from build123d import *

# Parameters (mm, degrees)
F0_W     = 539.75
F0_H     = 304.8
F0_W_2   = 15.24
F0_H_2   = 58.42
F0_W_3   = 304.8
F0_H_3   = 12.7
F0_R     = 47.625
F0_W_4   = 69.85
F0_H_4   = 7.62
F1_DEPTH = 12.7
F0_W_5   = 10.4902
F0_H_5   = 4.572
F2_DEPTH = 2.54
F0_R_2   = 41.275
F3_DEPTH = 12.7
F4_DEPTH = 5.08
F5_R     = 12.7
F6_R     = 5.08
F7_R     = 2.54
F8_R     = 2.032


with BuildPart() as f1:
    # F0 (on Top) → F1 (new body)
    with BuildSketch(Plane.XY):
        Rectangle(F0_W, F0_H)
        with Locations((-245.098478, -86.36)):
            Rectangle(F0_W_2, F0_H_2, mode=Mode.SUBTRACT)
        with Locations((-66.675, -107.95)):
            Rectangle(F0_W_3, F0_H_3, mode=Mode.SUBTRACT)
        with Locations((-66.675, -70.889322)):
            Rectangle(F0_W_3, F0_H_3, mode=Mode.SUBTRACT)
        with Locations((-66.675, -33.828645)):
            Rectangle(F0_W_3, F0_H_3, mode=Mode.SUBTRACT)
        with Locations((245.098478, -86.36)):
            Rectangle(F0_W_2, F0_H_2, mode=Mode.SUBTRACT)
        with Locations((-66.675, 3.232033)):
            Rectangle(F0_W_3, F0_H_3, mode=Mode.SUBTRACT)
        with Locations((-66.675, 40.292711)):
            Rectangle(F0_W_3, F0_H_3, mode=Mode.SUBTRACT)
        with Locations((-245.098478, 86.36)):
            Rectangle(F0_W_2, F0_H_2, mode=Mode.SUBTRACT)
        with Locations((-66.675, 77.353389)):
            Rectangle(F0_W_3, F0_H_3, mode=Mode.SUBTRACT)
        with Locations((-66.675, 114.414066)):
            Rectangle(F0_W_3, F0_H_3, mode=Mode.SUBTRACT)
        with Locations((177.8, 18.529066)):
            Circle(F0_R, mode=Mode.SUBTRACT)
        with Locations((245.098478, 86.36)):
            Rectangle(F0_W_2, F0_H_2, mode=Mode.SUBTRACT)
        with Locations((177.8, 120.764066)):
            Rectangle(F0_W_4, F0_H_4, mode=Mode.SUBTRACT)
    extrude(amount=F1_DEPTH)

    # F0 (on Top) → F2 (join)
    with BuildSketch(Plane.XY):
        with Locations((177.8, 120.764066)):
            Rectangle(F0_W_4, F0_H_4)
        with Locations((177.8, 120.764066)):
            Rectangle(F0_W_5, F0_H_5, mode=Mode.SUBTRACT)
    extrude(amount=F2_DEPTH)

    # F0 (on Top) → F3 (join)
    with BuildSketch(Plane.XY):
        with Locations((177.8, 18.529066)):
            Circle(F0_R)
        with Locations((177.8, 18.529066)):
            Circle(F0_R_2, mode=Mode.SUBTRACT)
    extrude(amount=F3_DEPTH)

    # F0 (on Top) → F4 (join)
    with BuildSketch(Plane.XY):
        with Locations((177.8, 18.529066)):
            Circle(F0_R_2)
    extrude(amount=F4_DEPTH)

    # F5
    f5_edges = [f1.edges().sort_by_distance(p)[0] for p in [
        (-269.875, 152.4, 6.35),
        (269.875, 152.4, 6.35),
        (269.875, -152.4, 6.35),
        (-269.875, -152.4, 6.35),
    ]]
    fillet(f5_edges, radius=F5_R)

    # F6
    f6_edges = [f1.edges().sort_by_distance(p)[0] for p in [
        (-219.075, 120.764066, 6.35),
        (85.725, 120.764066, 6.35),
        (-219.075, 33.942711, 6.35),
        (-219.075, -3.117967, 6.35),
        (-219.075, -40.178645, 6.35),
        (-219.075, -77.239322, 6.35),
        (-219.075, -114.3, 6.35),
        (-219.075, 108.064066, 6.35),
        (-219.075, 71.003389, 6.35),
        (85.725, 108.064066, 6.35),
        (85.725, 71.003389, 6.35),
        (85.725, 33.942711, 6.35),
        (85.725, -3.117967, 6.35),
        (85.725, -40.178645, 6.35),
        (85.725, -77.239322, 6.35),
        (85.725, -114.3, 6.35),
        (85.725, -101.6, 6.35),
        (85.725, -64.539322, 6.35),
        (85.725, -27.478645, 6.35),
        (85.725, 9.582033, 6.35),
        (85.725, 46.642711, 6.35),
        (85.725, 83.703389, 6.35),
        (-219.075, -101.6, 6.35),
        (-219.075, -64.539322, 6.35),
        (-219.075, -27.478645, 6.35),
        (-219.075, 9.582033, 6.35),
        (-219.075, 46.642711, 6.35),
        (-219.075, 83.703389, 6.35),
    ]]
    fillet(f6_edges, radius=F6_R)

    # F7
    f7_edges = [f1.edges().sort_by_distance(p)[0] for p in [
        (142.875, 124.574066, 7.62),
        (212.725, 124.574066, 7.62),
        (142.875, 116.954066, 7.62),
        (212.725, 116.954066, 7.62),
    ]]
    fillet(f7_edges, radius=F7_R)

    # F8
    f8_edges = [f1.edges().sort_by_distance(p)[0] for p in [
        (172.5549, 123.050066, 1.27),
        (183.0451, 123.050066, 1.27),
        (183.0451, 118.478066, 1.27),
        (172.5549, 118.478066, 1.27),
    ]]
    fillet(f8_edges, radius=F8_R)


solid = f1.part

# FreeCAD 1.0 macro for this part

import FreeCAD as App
import Part
import Sketcher
Q = App.Units.Quantity


def edges_at(feature, points):
    """Names of the edges that pass closest to the given points."""
    edges = feature.Shape.Edges
    near = lambda p: min(range(len(edges)), key=lambda i: edges[i].distToShape(Part.Vertex(*p))[0])
    return sorted({f"Edge{near(p) + 1}" for p in points})

doc = App.newDocument("Part")
params = doc.addObject("Spreadsheet::Sheet", "Params")
for row, (alias, value) in enumerate([
    ("sketch1_diameter", "3.75 in"),
    ("sketch1_width", "12 in"),
    ("sketch1_width2", "0.6 in"),
    ("sketch1_height", "2.3 in"),
    ("sketch1_height2", "0.5 in"),
    ("pad1_length", "0.5 in"),
    ("sketch2_height", "0.3 in"),
    ("sketch2_width", "2.75 in"),
    ("sketch2_height2", "0.18 in"),
    ("sketch2_width2", "0.413 in"),
    ("pad2_length", "0.1 in"),
    ("sketch3_diameter", "3.75 in"),
    ("sketch3_diameter2", "3.25 in"),
    ("pad3_length", "0.5 in"),
    ("sketch4_diameter", "3.25 in"),
    ("pad4_length", "0.2 in"),
    ("fillet_radius", "0.5 in"),
    ("fillet2_radius", "0.2 in"),
    ("fillet3_radius", "0.1 in"),
    ("fillet4_radius", "0.08 in"),
], start=1):
    params.set(f"A{row}", alias)
    params.set(f"B{row}", "=" + value)
    params.setAlias(f"B{row}", alias)

body = doc.addObject("PartDesign::Body", "Body")

# Sketch on XY plane
sketch1 = body.newObject("Sketcher::SketchObject", "Sketch")
sketch1.AttachmentSupport = (doc.getObject("XY_Plane"), [""])
sketch1.MapMode = "FlatFace"
sketch1.addGeometry(Part.LineSegment(App.Vector(-270, 152, 0), App.Vector(-270, -152, 0)), False)
sketch1.addGeometry(Part.LineSegment(App.Vector(-270, -152, 0), App.Vector(270, -152, 0)), False)
sketch1.addGeometry(Part.LineSegment(App.Vector(270, -152, 0), App.Vector(270, 152, 0)), False)
sketch1.addGeometry(Part.LineSegment(App.Vector(270, 152, 0), App.Vector(-270, 152, 0)), False)
sketch1.addGeometry(Part.LineSegment(App.Vector(-237, -116, 0), App.Vector(-253, -116, 0)), False)
sketch1.addGeometry(Part.LineSegment(App.Vector(-253, -116, 0), App.Vector(-253, -57, 0)), False)
sketch1.addGeometry(Part.LineSegment(App.Vector(-253, -57, 0), App.Vector(-237, -57, 0)), False)
sketch1.addGeometry(Part.LineSegment(App.Vector(-237, -57, 0), App.Vector(-237, -116, 0)), False)
sketch1.addGeometry(Part.LineSegment(App.Vector(86, -114, 0), App.Vector(-219, -114, 0)), False)
sketch1.addGeometry(Part.LineSegment(App.Vector(-219, -114, 0), App.Vector(-219, -102, 0)), False)
sketch1.addGeometry(Part.LineSegment(App.Vector(-219, -102, 0), App.Vector(86, -102, 0)), False)
sketch1.addGeometry(Part.LineSegment(App.Vector(86, -102, 0), App.Vector(86, -114, 0)), False)
sketch1.addGeometry(Part.LineSegment(App.Vector(86, -77, 0), App.Vector(-219, -77, 0)), False)
sketch1.addGeometry(Part.LineSegment(App.Vector(-219, -77, 0), App.Vector(-219, -65, 0)), False)
sketch1.addGeometry(Part.LineSegment(App.Vector(-219, -65, 0), App.Vector(86, -65, 0)), False)
sketch1.addGeometry(Part.LineSegment(App.Vector(86, -65, 0), App.Vector(86, -77, 0)), False)
sketch1.addGeometry(Part.LineSegment(App.Vector(86, -40, 0), App.Vector(-219, -40, 0)), False)
sketch1.addGeometry(Part.LineSegment(App.Vector(-219, -40, 0), App.Vector(-219, -27, 0)), False)
sketch1.addGeometry(Part.LineSegment(App.Vector(-219, -27, 0), App.Vector(86, -27, 0)), False)
sketch1.addGeometry(Part.LineSegment(App.Vector(86, -27, 0), App.Vector(86, -40, 0)), False)
sketch1.addGeometry(Part.LineSegment(App.Vector(86, -3, 0), App.Vector(-219, -3, 0)), False)
sketch1.addGeometry(Part.LineSegment(App.Vector(-219, -3, 0), App.Vector(-219, 10, 0)), False)
sketch1.addGeometry(Part.LineSegment(App.Vector(-219, 10, 0), App.Vector(86, 10, 0)), False)
sketch1.addGeometry(Part.LineSegment(App.Vector(86, 10, 0), App.Vector(86, -3, 0)), False)
sketch1.addGeometry(Part.LineSegment(App.Vector(253, -116, 0), App.Vector(237, -116, 0)), False)
sketch1.addGeometry(Part.LineSegment(App.Vector(237, -116, 0), App.Vector(237, -57, 0)), False)
sketch1.addGeometry(Part.LineSegment(App.Vector(237, -57, 0), App.Vector(253, -57, 0)), False)
sketch1.addGeometry(Part.LineSegment(App.Vector(253, -57, 0), App.Vector(253, -116, 0)), False)
sketch1.addGeometry(Part.LineSegment(App.Vector(86, 34, 0), App.Vector(-219, 34, 0)), False)
sketch1.addGeometry(Part.LineSegment(App.Vector(-219, 34, 0), App.Vector(-219, 47, 0)), False)
sketch1.addGeometry(Part.LineSegment(App.Vector(-219, 47, 0), App.Vector(86, 47, 0)), False)
sketch1.addGeometry(Part.LineSegment(App.Vector(86, 47, 0), App.Vector(86, 34, 0)), False)
sketch1.addGeometry(Part.LineSegment(App.Vector(-237, 57, 0), App.Vector(-253, 57, 0)), False)
sketch1.addGeometry(Part.LineSegment(App.Vector(-253, 57, 0), App.Vector(-253, 116, 0)), False)
sketch1.addGeometry(Part.LineSegment(App.Vector(-253, 116, 0), App.Vector(-237, 116, 0)), False)
sketch1.addGeometry(Part.LineSegment(App.Vector(-237, 116, 0), App.Vector(-237, 57, 0)), False)
sketch1.addGeometry(Part.LineSegment(App.Vector(86, 71, 0), App.Vector(-219, 71, 0)), False)
sketch1.addGeometry(Part.LineSegment(App.Vector(-219, 71, 0), App.Vector(-219, 84, 0)), False)
sketch1.addGeometry(Part.LineSegment(App.Vector(-219, 84, 0), App.Vector(86, 84, 0)), False)
sketch1.addGeometry(Part.LineSegment(App.Vector(86, 84, 0), App.Vector(86, 71, 0)), False)
sketch1.addGeometry(Part.LineSegment(App.Vector(86, 108, 0), App.Vector(-219, 108, 0)), False)
sketch1.addGeometry(Part.LineSegment(App.Vector(-219, 108, 0), App.Vector(-219, 121, 0)), False)
sketch1.addGeometry(Part.LineSegment(App.Vector(-219, 121, 0), App.Vector(86, 121, 0)), False)
sketch1.addGeometry(Part.LineSegment(App.Vector(86, 121, 0), App.Vector(86, 108, 0)), False)
sketch1.addGeometry(Part.Circle(App.Vector(178, 19, 0), App.Vector(0, 0, 1), 48), False)
sketch1.addGeometry(Part.LineSegment(App.Vector(253, 57, 0), App.Vector(237, 57, 0)), False)
sketch1.addGeometry(Part.LineSegment(App.Vector(237, 57, 0), App.Vector(237, 116, 0)), False)
sketch1.addGeometry(Part.LineSegment(App.Vector(237, 116, 0), App.Vector(253, 116, 0)), False)
sketch1.addGeometry(Part.LineSegment(App.Vector(253, 116, 0), App.Vector(253, 57, 0)), False)
sketch1.addGeometry(Part.LineSegment(App.Vector(213, 117, 0), App.Vector(143, 117, 0)), False)
sketch1.addGeometry(Part.LineSegment(App.Vector(143, 117, 0), App.Vector(143, 125, 0)), False)
sketch1.addGeometry(Part.LineSegment(App.Vector(143, 125, 0), App.Vector(213, 125, 0)), False)
sketch1.addGeometry(Part.LineSegment(App.Vector(213, 125, 0), App.Vector(213, 117, 0)), False)
sketch1.addConstraint(Sketcher.Constraint("Coincident", 0, 2, 1, 1))
sketch1.addConstraint(Sketcher.Constraint("Coincident", 1, 2, 2, 1))
sketch1.addConstraint(Sketcher.Constraint("Coincident", 2, 2, 3, 1))
sketch1.addConstraint(Sketcher.Constraint("Coincident", 3, 2, 0, 1))
sketch1.addConstraint(Sketcher.Constraint("Coincident", 4, 2, 5, 1))
sketch1.addConstraint(Sketcher.Constraint("Coincident", 5, 2, 6, 1))
sketch1.addConstraint(Sketcher.Constraint("Coincident", 6, 2, 7, 1))
sketch1.addConstraint(Sketcher.Constraint("Coincident", 7, 2, 4, 1))
sketch1.addConstraint(Sketcher.Constraint("Coincident", 8, 2, 9, 1))
sketch1.addConstraint(Sketcher.Constraint("Coincident", 9, 2, 10, 1))
sketch1.addConstraint(Sketcher.Constraint("Coincident", 10, 2, 11, 1))
sketch1.addConstraint(Sketcher.Constraint("Coincident", 11, 2, 8, 1))
sketch1.addConstraint(Sketcher.Constraint("Coincident", 12, 2, 13, 1))
sketch1.addConstraint(Sketcher.Constraint("Coincident", 13, 2, 14, 1))
sketch1.addConstraint(Sketcher.Constraint("Coincident", 14, 2, 15, 1))
sketch1.addConstraint(Sketcher.Constraint("Coincident", 15, 2, 12, 1))
sketch1.addConstraint(Sketcher.Constraint("Coincident", 16, 2, 17, 1))
sketch1.addConstraint(Sketcher.Constraint("Coincident", 17, 2, 18, 1))
sketch1.addConstraint(Sketcher.Constraint("Coincident", 18, 2, 19, 1))
sketch1.addConstraint(Sketcher.Constraint("Coincident", 19, 2, 16, 1))
sketch1.addConstraint(Sketcher.Constraint("Coincident", 20, 2, 21, 1))
sketch1.addConstraint(Sketcher.Constraint("Coincident", 21, 2, 22, 1))
sketch1.addConstraint(Sketcher.Constraint("Coincident", 22, 2, 23, 1))
sketch1.addConstraint(Sketcher.Constraint("Coincident", 23, 2, 20, 1))
sketch1.addConstraint(Sketcher.Constraint("Coincident", 24, 2, 25, 1))
sketch1.addConstraint(Sketcher.Constraint("Coincident", 25, 2, 26, 1))
sketch1.addConstraint(Sketcher.Constraint("Coincident", 26, 2, 27, 1))
sketch1.addConstraint(Sketcher.Constraint("Coincident", 27, 2, 24, 1))
sketch1.addConstraint(Sketcher.Constraint("Coincident", 28, 2, 29, 1))
sketch1.addConstraint(Sketcher.Constraint("Coincident", 29, 2, 30, 1))
sketch1.addConstraint(Sketcher.Constraint("Coincident", 30, 2, 31, 1))
sketch1.addConstraint(Sketcher.Constraint("Coincident", 31, 2, 28, 1))
sketch1.addConstraint(Sketcher.Constraint("Coincident", 32, 2, 33, 1))
sketch1.addConstraint(Sketcher.Constraint("Coincident", 33, 2, 34, 1))
sketch1.addConstraint(Sketcher.Constraint("Coincident", 34, 2, 35, 1))
sketch1.addConstraint(Sketcher.Constraint("Coincident", 35, 2, 32, 1))
sketch1.addConstraint(Sketcher.Constraint("Coincident", 36, 2, 37, 1))
sketch1.addConstraint(Sketcher.Constraint("Coincident", 37, 2, 38, 1))
sketch1.addConstraint(Sketcher.Constraint("Coincident", 38, 2, 39, 1))
sketch1.addConstraint(Sketcher.Constraint("Coincident", 39, 2, 36, 1))
sketch1.addConstraint(Sketcher.Constraint("Coincident", 40, 2, 41, 1))
sketch1.addConstraint(Sketcher.Constraint("Coincident", 41, 2, 42, 1))
sketch1.addConstraint(Sketcher.Constraint("Coincident", 42, 2, 43, 1))
sketch1.addConstraint(Sketcher.Constraint("Coincident", 43, 2, 40, 1))
sketch1.addConstraint(Sketcher.Constraint("Coincident", 45, 2, 46, 1))
sketch1.addConstraint(Sketcher.Constraint("Coincident", 46, 2, 47, 1))
sketch1.addConstraint(Sketcher.Constraint("Coincident", 47, 2, 48, 1))
sketch1.addConstraint(Sketcher.Constraint("Coincident", 48, 2, 45, 1))
sketch1.addConstraint(Sketcher.Constraint("Coincident", 49, 2, 50, 1))
sketch1.addConstraint(Sketcher.Constraint("Coincident", 50, 2, 51, 1))
sketch1.addConstraint(Sketcher.Constraint("Coincident", 51, 2, 52, 1))
sketch1.addConstraint(Sketcher.Constraint("Coincident", 52, 2, 49, 1))
sketch1.addConstraint(Sketcher.Constraint("Vertical", 0))
sketch1.addConstraint(Sketcher.Constraint("Horizontal", 1))
sketch1.addConstraint(Sketcher.Constraint("Vertical", 2))
sketch1.addConstraint(Sketcher.Constraint("Horizontal", 3))
sketch1.addConstraint(Sketcher.Constraint("Horizontal", 4))
sketch1.addConstraint(Sketcher.Constraint("Vertical", 5))
sketch1.addConstraint(Sketcher.Constraint("Horizontal", 6))
sketch1.addConstraint(Sketcher.Constraint("Vertical", 7))
sketch1.addConstraint(Sketcher.Constraint("Horizontal", 8))
sketch1.addConstraint(Sketcher.Constraint("Vertical", 9))
sketch1.addConstraint(Sketcher.Constraint("Horizontal", 10))
sketch1.addConstraint(Sketcher.Constraint("Vertical", 11))
sketch1.addConstraint(Sketcher.Constraint("Horizontal", 12))
sketch1.addConstraint(Sketcher.Constraint("Vertical", 13))
sketch1.addConstraint(Sketcher.Constraint("Horizontal", 14))
sketch1.addConstraint(Sketcher.Constraint("Vertical", 15))
sketch1.addConstraint(Sketcher.Constraint("Horizontal", 16))
sketch1.addConstraint(Sketcher.Constraint("Vertical", 17))
sketch1.addConstraint(Sketcher.Constraint("Horizontal", 18))
sketch1.addConstraint(Sketcher.Constraint("Vertical", 19))
sketch1.addConstraint(Sketcher.Constraint("Horizontal", 20))
sketch1.addConstraint(Sketcher.Constraint("Vertical", 21))
sketch1.addConstraint(Sketcher.Constraint("Horizontal", 22))
sketch1.addConstraint(Sketcher.Constraint("Vertical", 23))
sketch1.addConstraint(Sketcher.Constraint("Horizontal", 24))
sketch1.addConstraint(Sketcher.Constraint("Vertical", 25))
sketch1.addConstraint(Sketcher.Constraint("Horizontal", 26))
sketch1.addConstraint(Sketcher.Constraint("Vertical", 27))
sketch1.addConstraint(Sketcher.Constraint("Horizontal", 28))
sketch1.addConstraint(Sketcher.Constraint("Vertical", 29))
sketch1.addConstraint(Sketcher.Constraint("Horizontal", 30))
sketch1.addConstraint(Sketcher.Constraint("Vertical", 31))
sketch1.addConstraint(Sketcher.Constraint("Horizontal", 32))
sketch1.addConstraint(Sketcher.Constraint("Vertical", 33))
sketch1.addConstraint(Sketcher.Constraint("Horizontal", 34))
sketch1.addConstraint(Sketcher.Constraint("Vertical", 35))
sketch1.addConstraint(Sketcher.Constraint("Horizontal", 36))
sketch1.addConstraint(Sketcher.Constraint("Vertical", 37))
sketch1.addConstraint(Sketcher.Constraint("Horizontal", 38))
sketch1.addConstraint(Sketcher.Constraint("Vertical", 39))
sketch1.addConstraint(Sketcher.Constraint("Horizontal", 40))
sketch1.addConstraint(Sketcher.Constraint("Vertical", 41))
sketch1.addConstraint(Sketcher.Constraint("Horizontal", 42))
sketch1.addConstraint(Sketcher.Constraint("Vertical", 43))
sketch1.addConstraint(Sketcher.Constraint("Horizontal", 45))
sketch1.addConstraint(Sketcher.Constraint("Vertical", 46))
sketch1.addConstraint(Sketcher.Constraint("Horizontal", 47))
sketch1.addConstraint(Sketcher.Constraint("Vertical", 48))
sketch1.addConstraint(Sketcher.Constraint("Horizontal", 49))
sketch1.addConstraint(Sketcher.Constraint("Vertical", 50))
sketch1.addConstraint(Sketcher.Constraint("Horizontal", 51))
sketch1.addConstraint(Sketcher.Constraint("Vertical", 52))
sketch1.addConstraint(Sketcher.Constraint("Symmetric", 0, 2, 2, 2, -1, 1))
sketch1.addConstraint(Sketcher.Constraint("Symmetric", 26, 2, 32, 2, -1, 1))
sketch1.addConstraint(Sketcher.Constraint("Symmetric", 24, 2, 34, 2, -1, 1))
sketch1.addConstraint(Sketcher.Constraint("Symmetric", 6, 2, 45, 2, -1, 1))
sketch1.addConstraint(Sketcher.Constraint("Symmetric", 4, 2, 47, 2, -1, 1))
sketch1.addConstraint(Sketcher.Constraint("Symmetric", 7, 2, 24, 2, -2))
sketch1.addConstraint(Sketcher.Constraint("Symmetric", 5, 2, 26, 2, -2))
sketch1.addConstraint(Sketcher.Constraint("Vertical", 9, 2, 12, 2))
sketch1.addConstraint(Sketcher.Constraint("Vertical", 11, 2, 14, 2))
sketch1.addConstraint(Sketcher.Constraint("Vertical", 13, 2, 16, 2))
sketch1.addConstraint(Sketcher.Constraint("Vertical", 15, 2, 18, 2))
sketch1.addConstraint(Sketcher.Constraint("Vertical", 17, 2, 20, 2))
sketch1.addConstraint(Sketcher.Constraint("Vertical", 19, 2, 22, 2))
sketch1.addConstraint(Sketcher.Constraint("Vertical", 21, 2, 28, 2))
sketch1.addConstraint(Sketcher.Constraint("Vertical", 23, 2, 30, 2))
sketch1.addConstraint(Sketcher.Constraint("Vertical", 29, 2, 36, 2))
sketch1.addConstraint(Sketcher.Constraint("Vertical", 31, 2, 38, 2))
sketch1.addConstraint(Sketcher.Constraint("Vertical", 37, 2, 40, 2))
sketch1.addConstraint(Sketcher.Constraint("Vertical", 39, 2, 42, 2))
sketch1.addConstraint(Sketcher.Constraint("Equal", 42, 0))
sketch1.addConstraint(Sketcher.Constraint("Equal", 11, 13))
sketch1.addConstraint(Sketcher.Constraint("Equal", 15, 17))
sketch1.addConstraint(Sketcher.Constraint("Equal", 19, 21))
sketch1.addConstraint(Sketcher.Constraint("Equal", 23, 29))
sketch1.addConstraint(Sketcher.Constraint("Equal", 31, 37))
sketch1.addConstraint(Sketcher.Constraint("Equal", 39, 41))
sketch1.addConstraint(Sketcher.Constraint("Diameter", 44, Q("3.75 in")))
sketch1.addConstraint(Sketcher.Constraint("DistanceX", 8, 2, 8, 1, Q("12 in")))
sketch1.addConstraint(Sketcher.Constraint("DistanceX", 4, 2, 4, 1, Q("0.6 in")))
sketch1.addConstraint(Sketcher.Constraint("DistanceY", 5, 1, 5, 2, Q("2.3 in")))
sketch1.addConstraint(Sketcher.Constraint("DistanceY", 9, 1, 9, 2, Q("0.5 in")))
sketch1.addConstraint(Sketcher.Constraint("DistanceY", 50, 1, 50, 2, Q("0.3 in")))
sketch1.addConstraint(Sketcher.Constraint("DistanceX", -1, 1, 44, 3, Q("7 in")))
sketch1.addConstraint(Sketcher.Constraint("DistanceY", 9, 2, -1, 1, Q("4 in")))
sketch1.addConstraint(Sketcher.Constraint("DistanceX", 0, 2, 8, 2, Q("2 in")))
sketch1.addConstraint(Sketcher.Constraint("DistanceX", 1, 1, 1, 2, Q("21.25 in")))
sketch1.addConstraint(Sketcher.Constraint("DistanceX", 49, 2, 49, 1, Q("2.75 in")))
sketch1.addConstraint(Sketcher.Constraint("DistanceY", 25, 2, 45, 2, Q("4.5 in")))
sketch1.addConstraint(Sketcher.Constraint("DistanceX", 42, 2, 49, 2, Q("2.25 in")))
sketch1.addConstraint(Sketcher.Constraint("DistanceY", 49, 2, 42, 2, Q("0.15 in")))
sketch1.addConstraint(Sketcher.Constraint("DistanceX", 4, 2, -1, 1, Q("252.718478 mm")))
sketch1.addConstraint(Sketcher.Constraint("DistanceY", 12, 2, -1, 1, Q("77.239322 mm")))
sketch1.addConstraint(Sketcher.Constraint("DistanceY", -1, 1, 28, 2, Q("33.942711 mm")))
sketch1.addConstraint(Sketcher.Constraint("DistanceY", -1, 1, 36, 2, Q("71.003389 mm")))
sketch1.addConstraint(Sketcher.Constraint("DistanceY", 14, 2, 44, 3, Q("83.068388 mm")))
sketch1.addConstraint(Sketcher.Constraint("DistanceY", 18, 2, 44, 3, Q("46.007711 mm")))
sketch1.addConstraint(Sketcher.Constraint("DistanceY", 17, 2, 20, 2, Q("24.360678 mm")))
sketch1.addConstraint(Sketcher.Constraint("DistanceY", -1, 1, 40, 2, Q("108.064066 mm")))
sketch1.setExpression("Constraints[130]", "Params.sketch1_diameter")
sketch1.setExpression("Constraints[131]", "Params.sketch1_width")
sketch1.setExpression("Constraints[132]", "Params.sketch1_width2")
sketch1.setExpression("Constraints[133]", "Params.sketch1_height")
sketch1.setExpression("Constraints[134]", "Params.sketch1_height2")
pad1 = body.newObject("PartDesign::Pad", "Pad")
pad1.Profile = sketch1
pad1.setExpression("Length", "Params.pad1_length")

# Sketch on XY plane
sketch2 = body.newObject("Sketcher::SketchObject", "Sketch001")
sketch2.AttachmentSupport = (doc.getObject("XY_Plane"), [""])
sketch2.MapMode = "FlatFace"
sketch2.addGeometry(Part.LineSegment(App.Vector(142.9, 124.6, 0), App.Vector(142.9, 117, 0)), False)
sketch2.addGeometry(Part.LineSegment(App.Vector(142.9, 117, 0), App.Vector(212.7, 117, 0)), False)
sketch2.addGeometry(Part.LineSegment(App.Vector(212.7, 117, 0), App.Vector(212.7, 124.6, 0)), False)
sketch2.addGeometry(Part.LineSegment(App.Vector(212.7, 124.6, 0), App.Vector(142.9, 124.6, 0)), False)
sketch2.addGeometry(Part.LineSegment(App.Vector(183, 118.5, 0), App.Vector(172.6, 118.5, 0)), False)
sketch2.addGeometry(Part.LineSegment(App.Vector(172.6, 118.5, 0), App.Vector(172.6, 123.1, 0)), False)
sketch2.addGeometry(Part.LineSegment(App.Vector(172.6, 123.1, 0), App.Vector(183, 123.1, 0)), False)
sketch2.addGeometry(Part.LineSegment(App.Vector(183, 123.1, 0), App.Vector(183, 118.5, 0)), False)
sketch2.addConstraint(Sketcher.Constraint("Coincident", 0, 2, 1, 1))
sketch2.addConstraint(Sketcher.Constraint("Coincident", 1, 2, 2, 1))
sketch2.addConstraint(Sketcher.Constraint("Coincident", 2, 2, 3, 1))
sketch2.addConstraint(Sketcher.Constraint("Coincident", 3, 2, 0, 1))
sketch2.addConstraint(Sketcher.Constraint("Coincident", 4, 2, 5, 1))
sketch2.addConstraint(Sketcher.Constraint("Coincident", 5, 2, 6, 1))
sketch2.addConstraint(Sketcher.Constraint("Coincident", 6, 2, 7, 1))
sketch2.addConstraint(Sketcher.Constraint("Coincident", 7, 2, 4, 1))
sketch2.addConstraint(Sketcher.Constraint("Vertical", 0))
sketch2.addConstraint(Sketcher.Constraint("Horizontal", 1))
sketch2.addConstraint(Sketcher.Constraint("Vertical", 2))
sketch2.addConstraint(Sketcher.Constraint("Horizontal", 3))
sketch2.addConstraint(Sketcher.Constraint("Horizontal", 4))
sketch2.addConstraint(Sketcher.Constraint("Vertical", 5))
sketch2.addConstraint(Sketcher.Constraint("Horizontal", 6))
sketch2.addConstraint(Sketcher.Constraint("Vertical", 7))
sketch2.addConstraint(Sketcher.Constraint("DistanceY", 0, 2, 0, 1, Q("0.3 in")))
sketch2.addConstraint(Sketcher.Constraint("DistanceX", 1, 1, 1, 2, Q("2.75 in")))
sketch2.addConstraint(Sketcher.Constraint("DistanceY", 5, 1, 5, 2, Q("0.18 in")))
sketch2.addConstraint(Sketcher.Constraint("DistanceX", 4, 2, 4, 1, Q("0.413 in")))
sketch2.addConstraint(Sketcher.Constraint("DistanceY", 0, 2, 4, 2, Q("0.06 in")))
sketch2.addConstraint(Sketcher.Constraint("DistanceX", -1, 1, 0, 2, Q("5.625 in")))
sketch2.addConstraint(Sketcher.Constraint("DistanceX", -1, 1, 4, 2, Q("6.7935 in")))
sketch2.addConstraint(Sketcher.Constraint("DistanceY", -1, 1, 0, 2, Q("116.954066 mm")))
sketch2.setExpression("Constraints[16]", "Params.sketch2_height")
sketch2.setExpression("Constraints[17]", "Params.sketch2_width")
sketch2.setExpression("Constraints[18]", "Params.sketch2_height2")
sketch2.setExpression("Constraints[19]", "Params.sketch2_width2")
pad2 = body.newObject("PartDesign::Pad", "Pad001")
pad2.Profile = sketch2
pad2.setExpression("Length", "Params.pad2_length")

# Sketch on XY plane
sketch3 = body.newObject("Sketcher::SketchObject", "Sketch002")
sketch3.AttachmentSupport = (doc.getObject("XY_Plane"), [""])
sketch3.MapMode = "FlatFace"
sketch3.addGeometry(Part.Circle(App.Vector(178, 19, 0), App.Vector(0, 0, 1), 48), False)
sketch3.addGeometry(Part.Circle(App.Vector(178, 19, 0), App.Vector(0, 0, 1), 41), False)
sketch3.addConstraint(Sketcher.Constraint("Coincident", 1, 3, 0, 3))
sketch3.addConstraint(Sketcher.Constraint("Diameter", 0, Q("3.75 in")))
sketch3.addConstraint(Sketcher.Constraint("Diameter", 1, Q("3.25 in")))
sketch3.addConstraint(Sketcher.Constraint("DistanceX", -1, 1, 0, 3, Q("7 in")))
sketch3.addConstraint(Sketcher.Constraint("DistanceY", -1, 1, 0, 3, Q("18.529066 mm")))
sketch3.setExpression("Constraints[1]", "Params.sketch3_diameter")
sketch3.setExpression("Constraints[2]", "Params.sketch3_diameter2")
pad3 = body.newObject("PartDesign::Pad", "Pad002")
pad3.Profile = sketch3
pad3.setExpression("Length", "Params.pad3_length")

# Sketch on XY plane
sketch4 = body.newObject("Sketcher::SketchObject", "Sketch003")
sketch4.AttachmentSupport = (doc.getObject("XY_Plane"), [""])
sketch4.MapMode = "FlatFace"
sketch4.addGeometry(Part.Circle(App.Vector(178, 19, 0), App.Vector(0, 0, 1), 41), False)
sketch4.addConstraint(Sketcher.Constraint("Diameter", 0, Q("3.25 in")))
sketch4.addConstraint(Sketcher.Constraint("DistanceX", -1, 1, 0, 3, Q("7 in")))
sketch4.addConstraint(Sketcher.Constraint("DistanceY", -1, 1, 0, 3, Q("18.529066 mm")))
sketch4.setExpression("Constraints[0]", "Params.sketch4_diameter")
pad4 = body.newObject("PartDesign::Pad", "Pad003")
pad4.Profile = sketch4
pad4.setExpression("Length", "Params.pad4_length")
doc.recompute()

fillet = body.newObject("PartDesign::Fillet", "Fillet")
fillet.Base = (pad4, edges_at(pad4, [
    (-269.875, 152.4, 6.35),
    (269.875, 152.4, 6.35),
    (269.875, -152.4, 6.35),
    (-269.875, -152.4, 6.35),
]))
fillet.setExpression("Radius", "Params.fillet_radius")
doc.recompute()

fillet2 = body.newObject("PartDesign::Fillet", "Fillet001")
fillet2.Base = (fillet, edges_at(fillet, [
    (-219.075, 120.764, 6.35),
    (85.725, 120.764, 6.35),
    (-219.075, 33.943, 6.35),
    (-219.075, -3.118, 6.35),
    (-219.075, -40.179, 6.35),
    (-219.075, -77.239, 6.35),
    (-219.075, -114.3, 6.35),
    (-219.075, 108.064, 6.35),
    (-219.075, 71.003, 6.35),
    (85.725, 108.064, 6.35),
    (85.725, 71.003, 6.35),
    (85.725, 33.943, 6.35),
    (85.725, -3.118, 6.35),
    (85.725, -40.179, 6.35),
    (85.725, -77.239, 6.35),
    (85.725, -114.3, 6.35),
    (85.725, -101.6, 6.35),
    (85.725, -64.539, 6.35),
    (85.725, -27.479, 6.35),
    (85.725, 9.582, 6.35),
    (85.725, 46.643, 6.35),
    (85.725, 83.703, 6.35),
    (-219.075, -101.6, 6.35),
    (-219.075, -64.539, 6.35),
    (-219.075, -27.479, 6.35),
    (-219.075, 9.582, 6.35),
    (-219.075, 46.643, 6.35),
    (-219.075, 83.703, 6.35),
]))
fillet2.setExpression("Radius", "Params.fillet2_radius")
doc.recompute()

fillet3 = body.newObject("PartDesign::Fillet", "Fillet002")
fillet3.Base = (fillet2, edges_at(fillet2, [
    (142.875, 124.574, 7.62),
    (212.725, 124.574, 7.62),
    (142.875, 116.954, 7.62),
    (212.725, 116.954, 7.62),
]))
fillet3.setExpression("Radius", "Params.fillet3_radius")
doc.recompute()

fillet4 = body.newObject("PartDesign::Fillet", "Fillet003")
fillet4.Base = (fillet3, edges_at(fillet3, [
    (172.555, 123.05, 1.27),
    (183.045, 123.05, 1.27),
    (183.045, 118.478, 1.27),
    (172.555, 118.478, 1.27),
]))
fillet4.setExpression("Radius", "Params.fillet4_radius")

doc.recompute()
